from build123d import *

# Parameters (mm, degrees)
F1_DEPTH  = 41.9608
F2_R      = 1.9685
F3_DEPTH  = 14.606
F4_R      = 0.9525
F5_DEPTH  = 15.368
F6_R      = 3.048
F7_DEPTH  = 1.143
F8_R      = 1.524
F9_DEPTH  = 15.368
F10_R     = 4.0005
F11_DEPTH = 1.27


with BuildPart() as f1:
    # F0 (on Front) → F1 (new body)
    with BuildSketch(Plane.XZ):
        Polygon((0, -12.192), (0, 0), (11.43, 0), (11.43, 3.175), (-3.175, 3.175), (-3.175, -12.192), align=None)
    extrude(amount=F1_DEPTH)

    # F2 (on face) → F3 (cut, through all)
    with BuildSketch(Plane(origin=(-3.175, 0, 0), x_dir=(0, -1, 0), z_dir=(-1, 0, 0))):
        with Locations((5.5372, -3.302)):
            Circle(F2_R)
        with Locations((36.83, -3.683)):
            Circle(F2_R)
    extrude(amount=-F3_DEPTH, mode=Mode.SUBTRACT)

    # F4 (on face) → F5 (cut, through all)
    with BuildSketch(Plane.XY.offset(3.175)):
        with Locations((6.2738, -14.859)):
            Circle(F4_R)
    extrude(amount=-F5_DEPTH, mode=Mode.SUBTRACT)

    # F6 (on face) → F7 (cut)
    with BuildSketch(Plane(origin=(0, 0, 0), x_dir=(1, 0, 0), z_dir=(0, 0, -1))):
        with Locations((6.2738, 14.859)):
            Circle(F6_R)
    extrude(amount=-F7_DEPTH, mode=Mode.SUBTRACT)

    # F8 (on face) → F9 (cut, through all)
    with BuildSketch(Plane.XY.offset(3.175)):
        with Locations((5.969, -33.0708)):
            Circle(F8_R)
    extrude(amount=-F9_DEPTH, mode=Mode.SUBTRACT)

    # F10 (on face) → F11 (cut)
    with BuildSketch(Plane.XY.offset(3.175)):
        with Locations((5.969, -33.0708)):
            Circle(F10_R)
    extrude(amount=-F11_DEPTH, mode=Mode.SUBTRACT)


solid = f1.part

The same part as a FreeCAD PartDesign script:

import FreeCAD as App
import Part
import Sketcher
Q = App.Units.Quantity


def add_polygon(sketch, points):
    """Adds a closed chain of lines whose ends are joined by coincident constraints."""
    first, n = sketch.GeometryCount, len(points)
    for a, b in zip(points, points[1:] + points[:1]):
        sketch.addGeometry(Part.LineSegment(App.Vector(*a, 0), App.Vector(*b, 0)), False)
    for i in range(n):
        sketch.addConstraint(Sketcher.Constraint("Coincident", first + i, 2, first + (i + 1) % n, 1))

doc = App.newDocument("Part")
body = doc.addObject("PartDesign::Body", "Body")

sketch1 = body.newObject("Sketcher::SketchObject", "Sketch")
sketch1.AttachmentSupport = (doc.getObject("XZ_Plane"), [""])
sketch1.MapMode = "FlatFace"
add_polygon(sketch1, [(0, -12.2), (0, 0), (11.4, 0), (11.4, 3.2), (-3.2, 3.2), (-3.2, -12.2)])
sketch1.addConstraint(Sketcher.Constraint("Vertical", 0))
sketch1.addConstraint(Sketcher.Constraint("Horizontal", 1))
sketch1.addConstraint(Sketcher.Constraint("Vertical", 2))
sketch1.addConstraint(Sketcher.Constraint("Horizontal", 3))
sketch1.addConstraint(Sketcher.Constraint("Vertical", 4))
sketch1.addConstraint(Sketcher.Constraint("Horizontal", 5))
sketch1.addConstraint(Sketcher.Constraint("Coincident", 0, 2, -1, 1))
sketch1.addConstraint(Sketcher.Constraint("Equal", 5, 2))
sketch1.addConstraint(Sketcher.Constraint("DistanceX", 1, 1, 1, 2, Q("0.45 in")))
sketch1.addConstraint(Sketcher.Constraint("DistanceY", 0, 1, 0, 2, Q("0.48 in")))
sketch1.addConstraint(Sketcher.Constraint("DistanceX", 3, 2, 3, 1, Q("0.575 in")))
pad1 = body.newObject("PartDesign::Pad", "Pad")
pad1.Profile = sketch1
pad1.Length = Q("1.652 in")

sketch2 = body.newObject("Sketcher::SketchObject", "Sketch001")
sketch2.AttachmentSupport = (doc.getObject("YZ_Plane"), [""])
sketch2.MapMode = "FlatFace"
sketch2.AttachmentOffset = App.Placement(App.Vector(0, 0, -0.125 * 25.4), App.Rotation())
sketch2.addGeometry(Part.Circle(App.Vector(-5.5, -3.3, 0), App.Vector(0, 0, 1), 2), False)
sketch2.addGeometry(Part.Circle(App.Vector(-36.8, -3.7, 0), App.Vector(0, 0, 1), 2), False)
sketch2.addConstraint(Sketcher.Constraint("Equal", 0, 1))
sketch2.addConstraint(Sketcher.Constraint("Diameter", 0, Q("0.155 in")))
sketch2.addConstraint(Sketcher.Constraint("DistanceY", 0, 3, -1, 1, Q("0.13 in")))
sketch2.addConstraint(Sketcher.Constraint("DistanceX", 1, 3, -1, 1, Q("1.45 in")))
sketch2.addConstraint(Sketcher.Constraint("DistanceX", 0, 3, -1, 1, Q("0.218 in")))
sketch2.addConstraint(Sketcher.Constraint("DistanceY", 1, 3, -1, 1, Q("0.145 in")))
pocket1 = body.newObject("PartDesign::Pocket", "Pocket")
pocket1.Profile = sketch2
pocket1.Type = "ThroughAll"
pocket1.Reversed = True

sketch3 = body.newObject("Sketcher::SketchObject", "Sketch002")
sketch3.AttachmentSupport = (doc.getObject("XY_Plane"), [""])
sketch3.MapMode = "FlatFace"
sketch3.AttachmentOffset = App.Placement(App.Vector(0, 0, 0.125 * 25.4), App.Rotation())
sketch3.addGeometry(Part.Circle(App.Vector(6.3, -14.9, 0), App.Vector(0, 0, 1), 1), False)
sketch3.addConstraint(Sketcher.Constraint("Diameter", 0, Q("0.075 in")))
sketch3.addConstraint(Sketcher.Constraint("DistanceX", -1, 1, 0, 3, Q("0.247 in")))
sketch3.addConstraint(Sketcher.Constraint("DistanceY", 0, 3, -1, 1, Q("0.585 in")))
pocket2 = body.newObject("PartDesign::Pocket", "Pocket001")
pocket2.Profile = sketch3
pocket2.Type = "ThroughAll"

sketch4 = body.newObject("Sketcher::SketchObject", "Sketch003")
sketch4.AttachmentSupport = (doc.getObject("XY_Plane"), [""])
sketch4.MapMode = "FlatFace"
sketch4.addGeometry(Part.Circle(App.Vector(6.3, -14.9, 0), App.Vector(0, 0, 1), 3), False)
sketch4.addConstraint(Sketcher.Constraint("Diameter", 0, Q("0.24 in")))
sketch4.addConstraint(Sketcher.Constraint("DistanceX", -1, 1, 0, 3, Q("0.247 in")))
sketch4.addConstraint(Sketcher.Constraint("DistanceY", 0, 3, -1, 1, Q("0.585 in")))
pocket3 = body.newObject("PartDesign::Pocket", "Pocket002")
pocket3.Profile = sketch4
pocket3.Length = Q("0.045 in")
pocket3.Reversed = True

sketch5 = body.newObject("Sketcher::SketchObject", "Sketch004")
sketch5.AttachmentSupport = (doc.getObject("XY_Plane"), [""])
sketch5.MapMode = "FlatFace"
sketch5.AttachmentOffset = App.Placement(App.Vector(0, 0, 0.125 * 25.4), App.Rotation())
sketch5.addGeometry(Part.Circle(App.Vector(6, -33.1, 0), App.Vector(0, 0, 1), 1.5), False)
sketch5.addConstraint(Sketcher.Constraint("Diameter", 0, Q("0.12 in")))
sketch5.addConstraint(Sketcher.Constraint("DistanceX", -1, 1, 0, 3, Q("0.235 in")))
sketch5.addConstraint(Sketcher.Constraint("DistanceY", 0, 3, -1, 1, Q("1.302 in")))
pocket4 = body.newObject("PartDesign::Pocket", "Pocket003")
pocket4.Profile = sketch5
pocket4.Type = "ThroughAll"

sketch6 = body.newObject("Sketcher::SketchObject", "Sketch005")
sketch6.AttachmentSupport = (doc.getObject("XY_Plane"), [""])
sketch6.MapMode = "FlatFace"
sketch6.AttachmentOffset = App.Placement(App.Vector(0, 0, 0.125 * 25.4), App.Rotation())
sketch6.addGeometry(Part.Circle(App.Vector(6, -33.1, 0), App.Vector(0, 0, 1), 4), False)
sketch6.addConstraint(Sketcher.Constraint("Diameter", 0, Q("0.315 in")))
sketch6.addConstraint(Sketcher.Constraint("DistanceX", -1, 1, 0, 3, Q("0.235 in")))
sketch6.addConstraint(Sketcher.Constraint("DistanceY", 0, 3, -1, 1, Q("1.302 in")))
pocket5 = body.newObject("PartDesign::Pocket", "Pocket004")
pocket5.Profile = sketch6
pocket5.Length = Q("0.05 in")

doc.recompute()
